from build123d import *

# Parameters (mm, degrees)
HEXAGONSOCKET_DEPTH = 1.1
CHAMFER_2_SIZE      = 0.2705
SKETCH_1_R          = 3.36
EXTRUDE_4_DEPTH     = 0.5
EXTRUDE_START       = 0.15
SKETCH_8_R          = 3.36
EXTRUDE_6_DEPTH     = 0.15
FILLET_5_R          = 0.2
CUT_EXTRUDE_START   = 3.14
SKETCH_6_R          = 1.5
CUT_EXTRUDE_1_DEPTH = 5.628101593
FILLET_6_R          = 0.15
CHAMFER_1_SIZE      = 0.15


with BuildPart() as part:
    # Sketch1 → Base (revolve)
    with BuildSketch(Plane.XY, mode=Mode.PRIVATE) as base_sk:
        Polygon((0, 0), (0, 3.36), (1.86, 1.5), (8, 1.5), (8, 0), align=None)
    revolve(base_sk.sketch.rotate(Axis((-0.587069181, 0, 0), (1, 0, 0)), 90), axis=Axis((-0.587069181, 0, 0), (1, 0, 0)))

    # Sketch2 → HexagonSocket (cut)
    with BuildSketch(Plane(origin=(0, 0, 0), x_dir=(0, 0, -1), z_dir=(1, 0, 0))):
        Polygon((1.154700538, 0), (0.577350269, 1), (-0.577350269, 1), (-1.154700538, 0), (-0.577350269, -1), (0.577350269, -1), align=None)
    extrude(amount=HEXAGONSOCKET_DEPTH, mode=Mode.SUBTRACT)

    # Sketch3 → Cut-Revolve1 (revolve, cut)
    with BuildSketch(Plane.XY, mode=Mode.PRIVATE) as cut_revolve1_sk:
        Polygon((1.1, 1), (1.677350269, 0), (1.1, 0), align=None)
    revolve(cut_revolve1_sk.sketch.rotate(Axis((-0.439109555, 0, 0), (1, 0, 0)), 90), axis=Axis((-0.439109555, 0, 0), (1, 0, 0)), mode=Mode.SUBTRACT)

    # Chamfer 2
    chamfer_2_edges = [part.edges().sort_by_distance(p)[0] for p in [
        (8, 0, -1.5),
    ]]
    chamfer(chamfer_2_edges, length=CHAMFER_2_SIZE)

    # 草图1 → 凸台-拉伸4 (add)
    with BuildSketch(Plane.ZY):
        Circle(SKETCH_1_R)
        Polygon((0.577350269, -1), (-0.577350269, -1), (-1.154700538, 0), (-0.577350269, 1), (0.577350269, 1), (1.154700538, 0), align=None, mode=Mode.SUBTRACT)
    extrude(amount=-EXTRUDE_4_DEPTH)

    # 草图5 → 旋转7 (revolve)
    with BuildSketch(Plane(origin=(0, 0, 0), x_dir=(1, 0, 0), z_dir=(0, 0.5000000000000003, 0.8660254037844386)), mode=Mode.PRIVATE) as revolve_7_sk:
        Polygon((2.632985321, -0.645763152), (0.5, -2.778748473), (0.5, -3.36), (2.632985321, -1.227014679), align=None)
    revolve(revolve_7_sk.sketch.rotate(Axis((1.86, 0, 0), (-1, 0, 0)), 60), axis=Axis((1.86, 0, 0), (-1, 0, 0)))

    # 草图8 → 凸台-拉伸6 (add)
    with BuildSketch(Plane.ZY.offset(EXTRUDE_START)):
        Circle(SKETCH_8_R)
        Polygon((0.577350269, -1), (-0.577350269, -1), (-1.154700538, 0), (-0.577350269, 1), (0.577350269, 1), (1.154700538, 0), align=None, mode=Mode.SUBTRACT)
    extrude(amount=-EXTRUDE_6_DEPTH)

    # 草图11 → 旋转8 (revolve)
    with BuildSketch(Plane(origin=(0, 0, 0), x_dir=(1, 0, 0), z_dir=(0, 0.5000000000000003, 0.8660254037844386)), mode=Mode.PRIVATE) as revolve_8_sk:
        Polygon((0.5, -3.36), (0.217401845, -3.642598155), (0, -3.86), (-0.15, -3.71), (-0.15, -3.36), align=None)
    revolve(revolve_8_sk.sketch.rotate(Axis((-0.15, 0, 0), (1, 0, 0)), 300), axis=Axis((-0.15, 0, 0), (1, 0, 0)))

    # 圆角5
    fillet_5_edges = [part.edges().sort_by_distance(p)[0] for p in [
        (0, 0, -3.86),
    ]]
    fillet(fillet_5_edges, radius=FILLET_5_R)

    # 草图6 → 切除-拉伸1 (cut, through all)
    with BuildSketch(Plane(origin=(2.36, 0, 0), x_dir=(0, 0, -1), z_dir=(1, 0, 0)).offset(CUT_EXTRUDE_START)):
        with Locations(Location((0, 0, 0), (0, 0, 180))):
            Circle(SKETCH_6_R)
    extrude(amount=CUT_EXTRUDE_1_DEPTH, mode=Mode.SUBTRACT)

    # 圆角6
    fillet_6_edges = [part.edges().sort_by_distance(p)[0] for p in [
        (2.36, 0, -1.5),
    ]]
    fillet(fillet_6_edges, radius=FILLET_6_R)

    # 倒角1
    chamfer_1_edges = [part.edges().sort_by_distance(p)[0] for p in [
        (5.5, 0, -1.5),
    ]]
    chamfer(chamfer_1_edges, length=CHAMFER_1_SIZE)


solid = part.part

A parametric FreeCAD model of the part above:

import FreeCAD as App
import Part
import Sketcher
Q = App.Units.Quantity


def edges_at(feature, points):
    """Names of the edges that pass closest to the given points."""
    edges = feature.Shape.Edges
    near = lambda p: min(range(len(edges)), key=lambda i: edges[i].distToShape(Part.Vertex(*p))[0])
    return sorted({f"Edge{near(p) + 1}" for p in points})

doc = App.newDocument("Part")
params = doc.addObject("Spreadsheet::Sheet", "Params")
for row, (alias, value) in enumerate([
    ("sketch1_width", "8 mm"),
    ("sketch1_height", "1.5 mm"),
    ("sketch1_width2", "6.14 mm"),
    ("revolution_angle", "360 deg"),
    ("pocket1_length", "1.1 mm"),
    ("sketch3_height", "1 mm"),
    ("groove_angle", "360 deg"),
    ("chamfer_size", "0.2705 mm"),
    ("sketch4_diameter", "6.72 mm"),
    ("pad1_length", "0.5 mm"),
    ("revolution2_angle", "360 deg"),
    ("sketch6_diameter", "6.72 mm"),
    ("pad2_length", "0.15 mm"),
    ("sketch7_width", "0.65 mm"),
    ("sketch7_height", "0.35 mm"),
    ("revolution3_angle", "360 deg"),
    ("fillet_radius", "0.2 mm"),
    ("sketch8_diameter", "3 mm"),
    ("fillet2_radius", "0.15 mm"),
    ("chamfer2_size", "0.15 mm"),
], start=1):
    params.set(f"A{row}", alias)
    params.set(f"B{row}", "=" + value)
    params.setAlias(f"B{row}", alias)

body = doc.addObject("PartDesign::Body", "Body")

sketch1 = body.newObject("Sketcher::SketchObject", "Sketch")
sketch1.AttachmentSupport = (doc.getObject("XY_Plane"), [""])
sketch1.MapMode = "FlatFace"
sketch1.addGeometry([
    Part.LineSegment(App.Vector(0, 3.4, 0), App.Vector(0, 0, 0)),
    Part.LineSegment(App.Vector(0, 0, 0), App.Vector(8, 0, 0)),
    Part.LineSegment(App.Vector(8, 0, 0), App.Vector(8, 1.5, 0)),
    Part.LineSegment(App.Vector(8, 1.5, 0), App.Vector(1.9, 1.5, 0)),
    Part.LineSegment(App.Vector(1.9, 1.5, 0), App.Vector(0, 3.4, 0)),
], False)
sketch1.addConstraint([
    Sketcher.Constraint("Coincident", 0, 2, 1, 1),
    Sketcher.Constraint("Coincident", 1, 2, 2, 1),
    Sketcher.Constraint("Coincident", 2, 2, 3, 1),
    Sketcher.Constraint("Coincident", 3, 2, 4, 1),
    Sketcher.Constraint("Coincident", 4, 2, 0, 1),
    Sketcher.Constraint("Vertical", 0),
    Sketcher.Constraint("Horizontal", 1),
    Sketcher.Constraint("Vertical", 2),
    Sketcher.Constraint("Horizontal", 3),
    Sketcher.Constraint("Coincident", 0, 2, -1, 1),
    Sketcher.Constraint("DistanceX", 1, 1, 1, 2, Q("8 mm")),
    Sketcher.Constraint("Angle", 4, Q("135 deg")),
    Sketcher.Constraint("DistanceY", 2, 1, 2, 2, Q("1.5 mm")),
    Sketcher.Constraint("DistanceX", 3, 2, 3, 1, Q("6.14 mm")),
])
sketch1.setExpression("Constraints[10]", "Params.sketch1_width")
sketch1.setExpression("Constraints[12]", "Params.sketch1_height")
sketch1.setExpression("Constraints[13]", "Params.sketch1_width2")
revolution = body.newObject("PartDesign::Revolution", "Revolution")
revolution.Profile = sketch1
revolution.ReferenceAxis = (sketch1, ["H_Axis"])
revolution.setExpression("Angle", "Params.revolution_angle")

sketch2 = body.newObject("Sketcher::SketchObject", "Sketch001")
sketch2.AttachmentSupport = (doc.getObject("YZ_Plane"), [""])
sketch2.MapMode = "FlatFace"
sketch2.addGeometry([
    Part.LineSegment(App.Vector(0, -1.2, 0), App.Vector(1, -0.6, 0)),
    Part.LineSegment(App.Vector(1, -0.6, 0), App.Vector(1, 0.6, 0)),
    Part.LineSegment(App.Vector(1, 0.6, 0), App.Vector(0, 1.2, 0)),
    Part.LineSegment(App.Vector(0, 1.2, 0), App.Vector(-1, 0.6, 0)),
    Part.LineSegment(App.Vector(-1, 0.6, 0), App.Vector(-1, -0.6, 0)),
    Part.LineSegment(App.Vector(-1, -0.6, 0), App.Vector(0, -1.2, 0)),
], False)
sketch2.addConstraint([
    Sketcher.Constraint("Coincident", 0, 2, 1, 1),
    Sketcher.Constraint("Coincident", 1, 2, 2, 1),
    Sketcher.Constraint("Coincident", 2, 2, 3, 1),
    Sketcher.Constraint("Coincident", 3, 2, 4, 1),
    Sketcher.Constraint("Coincident", 4, 2, 5, 1),
    Sketcher.Constraint("Coincident", 5, 2, 0, 1),
    Sketcher.Constraint("Vertical", 1),
    Sketcher.Constraint("Vertical", 4),
    Sketcher.Constraint("Symmetric", 0, 2, 3, 2, -1, 1),
    Sketcher.Constraint("Symmetric", 2, 2, 5, 2, -1, 1),
    Sketcher.Constraint("PointOnObject", 2, 2, -2),
    Sketcher.Constraint("Parallel", 2, 5),
    Sketcher.Constraint("Horizontal", 1, 2, 3, 2),
    Sketcher.Constraint("Angle", 0, Q("30 deg")),
    Sketcher.Constraint("DistanceX", -1, 1, 0, 2, Q("1 mm")),
    Sketcher.Constraint("DistanceY", 1, 1, 1, 2, Q("1.154701 mm")),
])
pocket1 = body.newObject("PartDesign::Pocket", "Pocket")
pocket1.Profile = sketch2
pocket1.setExpression("Length", "Params.pocket1_length")
pocket1.Reversed = True

sketch3 = body.newObject("Sketcher::SketchObject", "Sketch002")
sketch3.AttachmentSupport = (doc.getObject("XY_Plane"), [""])
sketch3.MapMode = "FlatFace"
sketch3.addGeometry([
    Part.LineSegment(App.Vector(1.7, 0, 0), App.Vector(1.1, 1, 0)),
    Part.LineSegment(App.Vector(1.1, 1, 0), App.Vector(1.1, 0, 0)),
    Part.LineSegment(App.Vector(1.1, 0, 0), App.Vector(1.7, 0, 0)),
], False)
sketch3.addConstraint([
    Sketcher.Constraint("Coincident", 0, 2, 1, 1),
    Sketcher.Constraint("Coincident", 1, 2, 2, 1),
    Sketcher.Constraint("Coincident", 2, 2, 0, 1),
    Sketcher.Constraint("Vertical", 1),
    Sketcher.Constraint("Horizontal", 2),
    Sketcher.Constraint("PointOnObject", 1, 2, -1),
    Sketcher.Constraint("DistanceY", 1, 2, 1, 1, Q("1 mm")),
    Sketcher.Constraint("Angle", 0, Q("120 deg")),
    Sketcher.Constraint("DistanceX", -1, 1, 0, 2, Q("1.1 mm")),
])
sketch3.setExpression("Constraints[6]", "Params.sketch3_height")
groove = body.newObject("PartDesign::Groove", "Groove")
groove.Profile = sketch3
groove.ReferenceAxis = (sketch3, ["H_Axis"])
groove.setExpression("Angle", "Params.groove_angle")
doc.recompute()

chamfer = body.newObject("PartDesign::Chamfer", "Chamfer")
chamfer.Base = (groove, edges_at(groove, [(8, 0, -1.5)]))
chamfer.setExpression("Size", "Params.chamfer_size")

sketch4 = body.newObject("Sketcher::SketchObject", "Sketch003")
sketch4.AttachmentSupport = (doc.getObject("YZ_Plane"), [""])
sketch4.MapMode = "FlatFace"
sketch4.addGeometry([
    Part.Circle(App.Vector(0, 0, 0), App.Vector(0, 0, 1), 3.4),
    Part.LineSegment(App.Vector(0, 1.2, 0), App.Vector(-1, 0.6, 0)),
    Part.LineSegment(App.Vector(-1, 0.6, 0), App.Vector(-1, -0.6, 0)),
    Part.LineSegment(App.Vector(-1, -0.6, 0), App.Vector(0, -1.2, 0)),
    Part.LineSegment(App.Vector(0, -1.2, 0), App.Vector(1, -0.6, 0)),
    Part.LineSegment(App.Vector(1, -0.6, 0), App.Vector(1, 0.6, 0)),
    Part.LineSegment(App.Vector(1, 0.6, 0), App.Vector(0, 1.2, 0)),
], False)
sketch4.addConstraint([
    Sketcher.Constraint("Coincident", 1, 2, 2, 1),
    Sketcher.Constraint("Coincident", 2, 2, 3, 1),
    Sketcher.Constraint("Coincident", 3, 2, 4, 1),
    Sketcher.Constraint("Coincident", 4, 2, 5, 1),
    Sketcher.Constraint("Coincident", 5, 2, 6, 1),
    Sketcher.Constraint("Coincident", 6, 2, 1, 1),
    Sketcher.Constraint("Vertical", 2),
    Sketcher.Constraint("Vertical", 5),
    Sketcher.Constraint("Coincident", 0, 3, -1, 1),
    Sketcher.Constraint("Symmetric", 1, 2, 4, 2, -1, 1),
    Sketcher.Constraint("Symmetric", 3, 2, 6, 2, -1, 1),
    Sketcher.Constraint("PointOnObject", 3, 2, -2),
    Sketcher.Constraint("Parallel", 3, 6),
    Sketcher.Constraint("Horizontal", 2, 2, 4, 2),
    Sketcher.Constraint("Diameter", 0, Q("6.72 mm")),
    Sketcher.Constraint("Angle", 1, Q("-150 deg")),
    Sketcher.Constraint("DistanceX", 1, 2, -1, 1, Q("1 mm")),
    Sketcher.Constraint("DistanceY", 2, 2, 2, 1, Q("1.154701 mm")),
])
sketch4.setExpression("Constraints[14]", "Params.sketch4_diameter")
pad1 = body.newObject("PartDesign::Pad", "Pad")
pad1.Profile = sketch4
pad1.setExpression("Length", "Params.pad1_length")

sketch5 = body.newObject("Sketcher::SketchObject", "Sketch004")
sketch5.Placement = App.Placement(App.Vector(0, 0, 0), App.Rotation(App.Vector(1, 0, 0), App.Vector(0, 0.866025404, -0.5), App.Vector(0, 0.5, 0.866025404), "ZXY"))
sketch5.addGeometry([
    Part.LineSegment(App.Vector(2.6, -0.6, 0), App.Vector(0.5, -2.8, 0)),
    Part.LineSegment(App.Vector(0.5, -2.8, 0), App.Vector(0.5, -3.4, 0)),
    Part.LineSegment(App.Vector(0.5, -3.4, 0), App.Vector(2.6, -1.2, 0)),
    Part.LineSegment(App.Vector(2.6, -1.2, 0), App.Vector(2.6, -0.6, 0)),
], False)
sketch5.addConstraint([
    Sketcher.Constraint("Coincident", 0, 2, 1, 1),
    Sketcher.Constraint("Coincident", 1, 2, 2, 1),
    Sketcher.Constraint("Coincident", 2, 2, 3, 1),
    Sketcher.Constraint("Coincident", 3, 2, 0, 1),
    Sketcher.Constraint("Vertical", 1),
    Sketcher.Constraint("Vertical", 3),
    Sketcher.Constraint("Parallel", 0, 2),
    Sketcher.Constraint("Angle", 0, Q("-135 deg")),
    Sketcher.Constraint("DistanceX", -1, 1, 0, 2, Q("0.5 mm")),
    Sketcher.Constraint("DistanceY", 1, 2, -1, 1, Q("3.36 mm")),
    Sketcher.Constraint("DistanceY", 1, 2, 1, 1, Q("0.581252 mm")),
    Sketcher.Constraint("Distance", 0, Q("3.016497 mm")),
])
revolution2 = body.newObject("PartDesign::Revolution", "Revolution001")
revolution2.Profile = sketch5
revolution2.ReferenceAxis = (sketch5, ["H_Axis"])
revolution2.setExpression("Angle", "Params.revolution2_angle")

sketch6 = body.newObject("Sketcher::SketchObject", "Sketch005")
sketch6.AttachmentSupport = (doc.getObject("YZ_Plane"), [""])
sketch6.MapMode = "FlatFace"
sketch6.AttachmentOffset = App.Placement(App.Vector(0, 0, -0.15), App.Rotation())
sketch6.addGeometry([
    Part.Circle(App.Vector(0, 0, 0), App.Vector(0, 0, 1), 3.4),
    Part.LineSegment(App.Vector(0, 1.2, 0), App.Vector(-1, 0.6, 0)),
    Part.LineSegment(App.Vector(-1, 0.6, 0), App.Vector(-1, -0.6, 0)),
    Part.LineSegment(App.Vector(-1, -0.6, 0), App.Vector(0, -1.2, 0)),
    Part.LineSegment(App.Vector(0, -1.2, 0), App.Vector(1, -0.6, 0)),
    Part.LineSegment(App.Vector(1, -0.6, 0), App.Vector(1, 0.6, 0)),
    Part.LineSegment(App.Vector(1, 0.6, 0), App.Vector(0, 1.2, 0)),
], False)
sketch6.addConstraint([
    Sketcher.Constraint("Coincident", 1, 2, 2, 1),
    Sketcher.Constraint("Coincident", 2, 2, 3, 1),
    Sketcher.Constraint("Coincident", 3, 2, 4, 1),
    Sketcher.Constraint("Coincident", 4, 2, 5, 1),
    Sketcher.Constraint("Coincident", 5, 2, 6, 1),
    Sketcher.Constraint("Coincident", 6, 2, 1, 1),
    Sketcher.Constraint("Vertical", 2),
    Sketcher.Constraint("Vertical", 5),
    Sketcher.Constraint("Coincident", 0, 3, -1, 1),
    Sketcher.Constraint("Symmetric", 1, 2, 4, 2, -1, 1),
    Sketcher.Constraint("Symmetric", 3, 2, 6, 2, -1, 1),
    Sketcher.Constraint("PointOnObject", 3, 2, -2),
    Sketcher.Constraint("Parallel", 3, 6),
    Sketcher.Constraint("Horizontal", 2, 2, 4, 2),
    Sketcher.Constraint("Diameter", 0, Q("6.72 mm")),
    Sketcher.Constraint("Angle", 1, Q("-150 deg")),
    Sketcher.Constraint("DistanceX", 1, 2, -1, 1, Q("1 mm")),
    Sketcher.Constraint("DistanceY", 2, 2, 2, 1, Q("1.154701 mm")),
])
sketch6.setExpression("Constraints[14]", "Params.sketch6_diameter")
pad2 = body.newObject("PartDesign::Pad", "Pad001")
pad2.Profile = sketch6
pad2.setExpression("Length", "Params.pad2_length")

sketch7 = body.newObject("Sketcher::SketchObject", "Sketch006")
sketch7.Placement = App.Placement(App.Vector(0, 0, 0), App.Rotation(App.Vector(1, 0, 0), App.Vector(0, 0.866025404, -0.5), App.Vector(0, 0.5, 0.866025404), "ZXY"))
sketch7.addGeometry([
    Part.LineSegment(App.Vector(0, -3.86, 0), App.Vector(0.5, -3.36, 0)),
    Part.LineSegment(App.Vector(0.5, -3.36, 0), App.Vector(-0.15, -3.36, 0)),
    Part.LineSegment(App.Vector(-0.15, -3.36, 0), App.Vector(-0.15, -3.71, 0)),
    Part.LineSegment(App.Vector(-0.15, -3.71, 0), App.Vector(0, -3.86, 0)),
], False)
sketch7.addConstraint([
    Sketcher.Constraint("Coincident", 0, 2, 1, 1),
    Sketcher.Constraint("Coincident", 1, 2, 2, 1),
    Sketcher.Constraint("Coincident", 2, 2, 3, 1),
    Sketcher.Constraint("Coincident", 3, 2, 0, 1),
    Sketcher.Constraint("Horizontal", 1),
    Sketcher.Constraint("Vertical", 2),
    Sketcher.Constraint("PointOnObject", 3, 2, -2),
    Sketcher.Constraint("Perpendicular", 0, 3),
    Sketcher.Constraint("Angle", 0, Q("45 deg")),
    Sketcher.Constraint("DistanceX", 1, 2, 1, 1, Q("0.65 mm")),
    Sketcher.Constraint("DistanceY", 2, 2, 2, 1, Q("0.35 mm")),
    Sketcher.Constraint("DistanceY", 0, 2, -1, 1, Q("3.36 mm")),
])
sketch7.setExpression("Constraints[9]", "Params.sketch7_width")
sketch7.setExpression("Constraints[10]", "Params.sketch7_height")
revolution3 = body.newObject("PartDesign::Revolution", "Revolution002")
revolution3.Profile = sketch7
revolution3.ReferenceAxis = (sketch7, ["H_Axis"])
revolution3.setExpression("Angle", "Params.revolution3_angle")
doc.recompute()

fillet = body.newObject("PartDesign::Fillet", "Fillet")
fillet.Base = (revolution3, edges_at(revolution3, [(0, 0, -3.86)]))
fillet.setExpression("Radius", "Params.fillet_radius")

sketch8 = body.newObject("Sketcher::SketchObject", "Sketch007")
sketch8.AttachmentSupport = (doc.getObject("YZ_Plane"), [""])
sketch8.MapMode = "FlatFace"
sketch8.AttachmentOffset = App.Placement(App.Vector(0, 0, 5.5), App.Rotation())
sketch8.addGeometry(Part.Circle(App.Vector(0, 0, 0), App.Vector(0, 0, 1), 1.5), False)
sketch8.addConstraint([
    Sketcher.Constraint("Coincident", 0, 3, -1, 1),
    Sketcher.Constraint("Diameter", 0, Q("3 mm")),
])
sketch8.setExpression("Constraints[1]", "Params.sketch8_diameter")
pocket2 = body.newObject("PartDesign::Pocket", "Pocket001")
pocket2.Profile = sketch8
pocket2.Type = "ThroughAll"
pocket2.Reversed = True
doc.recompute()

fillet2 = body.newObject("PartDesign::Fillet", "Fillet001")
fillet2.Base = (pocket2, edges_at(pocket2, [(2.36, 0, -1.5)]))
fillet2.setExpression("Radius", "Params.fillet2_radius")
doc.recompute()

chamfer2 = body.newObject("PartDesign::Chamfer", "Chamfer001")
chamfer2.Base = (fillet2, edges_at(fillet2, [(5.5, 0, -1.5)]))
chamfer2.setExpression("Size", "Params.chamfer2_size")

doc.recompute()
